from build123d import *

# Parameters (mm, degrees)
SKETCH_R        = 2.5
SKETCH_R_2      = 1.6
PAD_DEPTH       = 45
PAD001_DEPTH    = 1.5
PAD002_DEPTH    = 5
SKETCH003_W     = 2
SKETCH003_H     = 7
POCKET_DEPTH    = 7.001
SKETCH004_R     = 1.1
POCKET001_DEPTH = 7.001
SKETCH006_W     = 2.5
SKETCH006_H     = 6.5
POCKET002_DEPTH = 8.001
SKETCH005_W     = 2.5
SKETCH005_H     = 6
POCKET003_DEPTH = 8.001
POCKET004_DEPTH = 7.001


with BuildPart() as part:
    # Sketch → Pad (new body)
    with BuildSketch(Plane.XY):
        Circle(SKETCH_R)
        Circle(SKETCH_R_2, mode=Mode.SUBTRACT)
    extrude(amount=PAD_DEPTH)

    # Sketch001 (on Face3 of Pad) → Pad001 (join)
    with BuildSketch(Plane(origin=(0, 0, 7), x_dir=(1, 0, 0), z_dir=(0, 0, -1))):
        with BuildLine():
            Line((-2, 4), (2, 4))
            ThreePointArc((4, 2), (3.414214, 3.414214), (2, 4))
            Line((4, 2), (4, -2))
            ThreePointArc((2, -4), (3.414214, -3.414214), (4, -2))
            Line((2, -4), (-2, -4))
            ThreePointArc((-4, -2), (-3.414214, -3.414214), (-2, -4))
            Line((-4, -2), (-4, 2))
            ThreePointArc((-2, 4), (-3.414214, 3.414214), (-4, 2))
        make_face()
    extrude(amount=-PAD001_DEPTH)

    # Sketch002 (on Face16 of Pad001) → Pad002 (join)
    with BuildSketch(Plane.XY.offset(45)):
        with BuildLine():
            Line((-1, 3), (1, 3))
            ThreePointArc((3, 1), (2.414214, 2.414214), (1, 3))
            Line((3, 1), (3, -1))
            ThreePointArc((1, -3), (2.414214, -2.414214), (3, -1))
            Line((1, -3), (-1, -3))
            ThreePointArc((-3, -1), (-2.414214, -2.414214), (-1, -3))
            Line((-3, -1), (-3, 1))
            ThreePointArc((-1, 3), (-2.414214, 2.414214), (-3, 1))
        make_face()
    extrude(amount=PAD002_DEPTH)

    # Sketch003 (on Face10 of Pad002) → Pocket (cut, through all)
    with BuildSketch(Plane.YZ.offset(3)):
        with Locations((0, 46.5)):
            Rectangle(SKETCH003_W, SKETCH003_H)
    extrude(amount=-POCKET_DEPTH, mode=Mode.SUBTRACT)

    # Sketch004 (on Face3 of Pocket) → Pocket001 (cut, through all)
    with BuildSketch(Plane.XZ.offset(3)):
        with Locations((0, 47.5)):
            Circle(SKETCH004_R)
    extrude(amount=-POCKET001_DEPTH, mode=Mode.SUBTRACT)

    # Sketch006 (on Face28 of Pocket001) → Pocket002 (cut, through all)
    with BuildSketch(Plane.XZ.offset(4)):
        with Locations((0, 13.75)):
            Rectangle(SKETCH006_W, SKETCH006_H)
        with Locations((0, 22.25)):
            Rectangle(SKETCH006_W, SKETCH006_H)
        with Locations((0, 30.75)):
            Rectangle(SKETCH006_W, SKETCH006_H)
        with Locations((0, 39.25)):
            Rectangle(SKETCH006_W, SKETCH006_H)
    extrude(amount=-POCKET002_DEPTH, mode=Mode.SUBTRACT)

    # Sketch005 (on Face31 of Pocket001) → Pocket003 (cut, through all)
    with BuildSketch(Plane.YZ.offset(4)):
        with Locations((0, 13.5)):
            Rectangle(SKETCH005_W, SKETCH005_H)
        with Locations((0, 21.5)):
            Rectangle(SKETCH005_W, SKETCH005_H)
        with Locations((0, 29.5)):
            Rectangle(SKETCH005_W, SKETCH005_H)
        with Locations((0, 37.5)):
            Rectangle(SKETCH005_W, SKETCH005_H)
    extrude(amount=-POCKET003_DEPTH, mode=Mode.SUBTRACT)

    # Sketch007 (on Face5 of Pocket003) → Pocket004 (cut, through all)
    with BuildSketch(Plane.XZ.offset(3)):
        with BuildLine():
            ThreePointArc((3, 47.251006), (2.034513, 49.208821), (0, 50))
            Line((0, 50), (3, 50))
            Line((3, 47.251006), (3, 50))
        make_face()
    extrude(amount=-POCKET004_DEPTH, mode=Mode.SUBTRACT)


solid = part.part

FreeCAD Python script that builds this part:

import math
import FreeCAD as App
import Part
import Sketcher

doc = App.newDocument("Part")
body = doc.addObject("PartDesign::Body", "Body")

# Sketch on XY plane
sketch1 = body.newObject("Sketcher::SketchObject", "Sketch")
sketch1.AttachmentSupport = (doc.getObject("XY_Plane"), [""])
sketch1.MapMode = "FlatFace"
sketch1.addGeometry([
    Part.Circle(App.Vector(0, 0, 0), App.Vector(0, 0, 1), 2.5),
    Part.Circle(App.Vector(0, 0, 0), App.Vector(0, 0, 1), 1.6),
], False)
sketch1.addConstraint([
    Sketcher.Constraint("Coincident", 0, 3, -1, 1),
    Sketcher.Constraint("Coincident", 1, 3, -1, 1),
    Sketcher.Constraint("Diameter", 0, 5.0),
    Sketcher.Constraint("Diameter", 1, 3.2),
])
pad1 = body.newObject("PartDesign::Pad", "Pad")
pad1.Profile = sketch1
pad1.Length = 45

# Sketch on XY plane
sketch2 = body.newObject("Sketcher::SketchObject", "Sketch001")
sketch2.AttachmentSupport = (doc.getObject("XY_Plane"), [""])
sketch2.MapMode = "FlatFace"
sketch2.AttachmentOffset = App.Placement(App.Vector(0, 0, 7), App.Rotation())
sketch2.addGeometry([
    Part.LineSegment(App.Vector(2, -4, 0), App.Vector(-2, -4, 0)),  # 0
    Part.ArcOfCircle(Part.Circle(App.Vector(-2, -2, 0), App.Vector(0, 0, 1), 2), math.radians(180), math.radians(270)),  # 1
    Part.LineSegment(App.Vector(-4, -2, 0), App.Vector(-4, 2, 0)),  # 2
    Part.ArcOfCircle(Part.Circle(App.Vector(-2, 2, 0), App.Vector(0, 0, 1), 2), math.radians(90), math.radians(180)),  # 3
    Part.LineSegment(App.Vector(-2, 4, 0), App.Vector(2, 4, 0)),  # 4
    Part.ArcOfCircle(Part.Circle(App.Vector(2, 2, 0), App.Vector(0, 0, 1), 2), math.radians(0), math.radians(90)),  # 5
    Part.LineSegment(App.Vector(4, 2, 0), App.Vector(4, -2, 0)),  # 6
    Part.ArcOfCircle(Part.Circle(App.Vector(2, -2, 0), App.Vector(0, 0, 1), 2), math.radians(-90), math.radians(0)),  # 7
], False)
sketch2.addConstraint([
    Sketcher.Constraint("Tangent", 0, 2, 1, 2),
    Sketcher.Constraint("Tangent", 1, 1, 2, 1),
    Sketcher.Constraint("Tangent", 2, 2, 3, 2),
    Sketcher.Constraint("Tangent", 3, 1, 4, 1),
    Sketcher.Constraint("Tangent", 4, 2, 5, 2),
    Sketcher.Constraint("Tangent", 5, 1, 6, 1),
    Sketcher.Constraint("Tangent", 6, 2, 7, 2),
    Sketcher.Constraint("Tangent", 7, 1, 0, 1),
    Sketcher.Constraint("Horizontal", 0),
    Sketcher.Constraint("Vertical", 2),
    Sketcher.Constraint("Horizontal", 4),
    Sketcher.Constraint("Vertical", 6),
    Sketcher.Constraint("Equal", 1, 3),
    Sketcher.Constraint("Equal", 3, 5),
    Sketcher.Constraint("Equal", 5, 7),
    Sketcher.Constraint("Symmetric", 1, 3, 5, 3, -1, 1),
    Sketcher.Constraint("Equal", 4, 2),
    Sketcher.Constraint("Radius", 1, 1.999999),
    Sketcher.Constraint("DistanceX", 0, 2, 0, 1, 4.0),
])
pad2 = body.newObject("PartDesign::Pad", "Pad001")
pad2.Profile = sketch2
pad2.Length = 1.5

# Sketch on XY plane
sketch3 = body.newObject("Sketcher::SketchObject", "Sketch002")
sketch3.AttachmentSupport = (doc.getObject("XY_Plane"), [""])
sketch3.MapMode = "FlatFace"
sketch3.AttachmentOffset = App.Placement(App.Vector(0, 0, 45), App.Rotation())
sketch3.addGeometry([
    Part.LineSegment(App.Vector(1, 3, 0), App.Vector(-1, 3, 0)),  # 0
    Part.ArcOfCircle(Part.Circle(App.Vector(-1, 1, 0), App.Vector(0, 0, 1), 2), math.radians(90), math.radians(180)),  # 1
    Part.LineSegment(App.Vector(-3, 1, 0), App.Vector(-3, -1, 0)),  # 2
    Part.ArcOfCircle(Part.Circle(App.Vector(-1, -1, 0), App.Vector(0, 0, 1), 2), math.radians(180), math.radians(270)),  # 3
    Part.LineSegment(App.Vector(-1, -3, 0), App.Vector(1, -3, 0)),  # 4
    Part.ArcOfCircle(Part.Circle(App.Vector(1, -1, 0), App.Vector(0, 0, 1), 2), math.radians(-90), math.radians(0)),  # 5
    Part.LineSegment(App.Vector(3, -1, 0), App.Vector(3, 1, 0)),  # 6
    Part.ArcOfCircle(Part.Circle(App.Vector(1, 1, 0), App.Vector(0, 0, 1), 2), math.radians(0), math.radians(90)),  # 7
], False)
sketch3.addConstraint([
    Sketcher.Constraint("Tangent", 0, 2, 1, 1),
    Sketcher.Constraint("Tangent", 1, 2, 2, 1),
    Sketcher.Constraint("Tangent", 2, 2, 3, 1),
    Sketcher.Constraint("Tangent", 3, 2, 4, 1),
    Sketcher.Constraint("Tangent", 4, 2, 5, 1),
    Sketcher.Constraint("Tangent", 5, 2, 6, 1),
    Sketcher.Constraint("Tangent", 6, 2, 7, 1),
    Sketcher.Constraint("Tangent", 7, 2, 0, 1),
    Sketcher.Constraint("Horizontal", 0),
    Sketcher.Constraint("Vertical", 2),
    Sketcher.Constraint("Horizontal", 4),
    Sketcher.Constraint("Vertical", 6),
    Sketcher.Constraint("Equal", 1, 3),
    Sketcher.Constraint("Equal", 3, 5),
    Sketcher.Constraint("Equal", 5, 7),
    Sketcher.Constraint("Symmetric", 1, 3, 5, 3, -1, 1),
    Sketcher.Constraint("Equal", 4, 2),
    Sketcher.Constraint("Radius", 1, 1.999999),
    Sketcher.Constraint("DistanceX", 0, 2, 0, 1, 2.0),
])
pad3 = body.newObject("PartDesign::Pad", "Pad002")
pad3.Profile = sketch3
pad3.Length = 5

# Sketch on YZ plane
sketch4 = body.newObject("Sketcher::SketchObject", "Sketch003")
sketch4.AttachmentSupport = (doc.getObject("YZ_Plane"), [""])
sketch4.MapMode = "FlatFace"
sketch4.AttachmentOffset = App.Placement(App.Vector(0, 0, 3), App.Rotation())
sketch4.addGeometry([
    Part.LineSegment(App.Vector(-1, 50, 0), App.Vector(-1, 43, 0)),
    Part.LineSegment(App.Vector(-1, 43, 0), App.Vector(1, 43, 0)),
    Part.LineSegment(App.Vector(1, 43, 0), App.Vector(1, 50, 0)),
    Part.LineSegment(App.Vector(1, 50, 0), App.Vector(-1, 50, 0)),
], False)
sketch4.addConstraint([
    Sketcher.Constraint("Coincident", 0, 2, 1, 1),
    Sketcher.Constraint("Coincident", 1, 2, 2, 1),
    Sketcher.Constraint("Coincident", 2, 2, 3, 1),
    Sketcher.Constraint("Coincident", 3, 2, 0, 1),
    Sketcher.Constraint("Vertical", 0),
    Sketcher.Constraint("Horizontal", 1),
    Sketcher.Constraint("Vertical", 2),
    Sketcher.Constraint("Horizontal", 3),
    Sketcher.Constraint("DistanceX", 1, 1, 1, 2, 2.0),
    Sketcher.Constraint("DistanceY", 0, 2, 0, 1, 7.0),
    Sketcher.Constraint("DistanceX", 0, 2, -1, 1, 1.0),
    Sketcher.Constraint("DistanceY", -1, 1, 0, 2, 43.0),
])
pocket1 = body.newObject("PartDesign::Pocket", "Pocket")
pocket1.Profile = sketch4
pocket1.Type = "ThroughAll"

# Sketch on XZ plane
sketch5 = body.newObject("Sketcher::SketchObject", "Sketch004")
sketch5.AttachmentSupport = (doc.getObject("XZ_Plane"), [""])
sketch5.MapMode = "FlatFace"
sketch5.AttachmentOffset = App.Placement(App.Vector(0, 0, 3), App.Rotation())
sketch5.addGeometry(Part.Circle(App.Vector(0, 47.5, 0), App.Vector(0, 0, 1), 1.1), False)
sketch5.addConstraint([
    Sketcher.Constraint("PointOnObject", 0, 3, -2),
    Sketcher.Constraint("Diameter", 0, 2.2),
    Sketcher.Constraint("DistanceY", -1, 1, 0, 3, 47.5),
])
pocket2 = body.newObject("PartDesign::Pocket", "Pocket001")
pocket2.Profile = sketch5
pocket2.Type = "ThroughAll"

# Sketch on XZ plane
sketch6 = body.newObject("Sketcher::SketchObject", "Sketch005")
sketch6.AttachmentSupport = (doc.getObject("XZ_Plane"), [""])
sketch6.MapMode = "FlatFace"
sketch6.AttachmentOffset = App.Placement(App.Vector(0, 0, 4), App.Rotation())
sketch6.addGeometry([
    Part.LineSegment(App.Vector(-1.2, 17, 0), App.Vector(-1.2, 10.5, 0)),  # 0
    Part.LineSegment(App.Vector(-1.2, 10.5, 0), App.Vector(1.2, 10.5, 0)),  # 1
    Part.LineSegment(App.Vector(1.2, 10.5, 0), App.Vector(1.2, 17, 0)),  # 2
    Part.LineSegment(App.Vector(1.2, 17, 0), App.Vector(-1.2, 17, 0)),  # 3
    Part.LineSegment(App.Vector(-1.2, 25.5, 0), App.Vector(-1.2, 19, 0)),  # 4
    Part.LineSegment(App.Vector(-1.2, 19, 0), App.Vector(1.2, 19, 0)),  # 5
    Part.LineSegment(App.Vector(1.2, 19, 0), App.Vector(1.2, 25.5, 0)),  # 6
    Part.LineSegment(App.Vector(1.2, 25.5, 0), App.Vector(-1.2, 25.5, 0)),  # 7
    Part.LineSegment(App.Vector(-1.2, 34, 0), App.Vector(-1.2, 27.5, 0)),  # 8
    Part.LineSegment(App.Vector(-1.2, 27.5, 0), App.Vector(1.2, 27.5, 0)),  # 9
    Part.LineSegment(App.Vector(1.2, 27.5, 0), App.Vector(1.2, 34, 0)),  # 10
    Part.LineSegment(App.Vector(1.2, 34, 0), App.Vector(-1.2, 34, 0)),  # 11
    Part.LineSegment(App.Vector(-1.2, 42.5, 0), App.Vector(-1.2, 36, 0)),  # 12
    Part.LineSegment(App.Vector(-1.2, 36, 0), App.Vector(1.2, 36, 0)),  # 13
    Part.LineSegment(App.Vector(1.2, 36, 0), App.Vector(1.2, 42.5, 0)),  # 14
    Part.LineSegment(App.Vector(1.2, 42.5, 0), App.Vector(-1.2, 42.5, 0)),  # 15
], False)
sketch6.addConstraint([
    Sketcher.Constraint("Coincident", 0, 2, 1, 1),
    Sketcher.Constraint("Coincident", 1, 2, 2, 1),
    Sketcher.Constraint("Coincident", 2, 2, 3, 1),
    Sketcher.Constraint("Coincident", 3, 2, 0, 1),
    Sketcher.Constraint("Coincident", 4, 2, 5, 1),
    Sketcher.Constraint("Coincident", 5, 2, 6, 1),
    Sketcher.Constraint("Coincident", 6, 2, 7, 1),
    Sketcher.Constraint("Coincident", 7, 2, 4, 1),
    Sketcher.Constraint("Coincident", 8, 2, 9, 1),
    Sketcher.Constraint("Coincident", 9, 2, 10, 1),
    Sketcher.Constraint("Coincident", 10, 2, 11, 1),
    Sketcher.Constraint("Coincident", 11, 2, 8, 1),
    Sketcher.Constraint("Coincident", 12, 2, 13, 1),
    Sketcher.Constraint("Coincident", 13, 2, 14, 1),
    Sketcher.Constraint("Coincident", 14, 2, 15, 1),
    Sketcher.Constraint("Coincident", 15, 2, 12, 1),
    Sketcher.Constraint("Vertical", 0),
    Sketcher.Constraint("Horizontal", 1),
    Sketcher.Constraint("Vertical", 2),
    Sketcher.Constraint("Horizontal", 3),
    Sketcher.Constraint("Vertical", 4),
    Sketcher.Constraint("Horizontal", 5),
    Sketcher.Constraint("Vertical", 6),
    Sketcher.Constraint("Horizontal", 7),
    Sketcher.Constraint("Vertical", 8),
    Sketcher.Constraint("Horizontal", 9),
    Sketcher.Constraint("Vertical", 10),
    Sketcher.Constraint("Horizontal", 11),
    Sketcher.Constraint("Vertical", 12),
    Sketcher.Constraint("Horizontal", 13),
    Sketcher.Constraint("Vertical", 14),
    Sketcher.Constraint("Horizontal", 15),
    Sketcher.Constraint("Vertical", 3, 2, 4, 2),
    Sketcher.Constraint("Vertical", 2, 2, 5, 2),
    Sketcher.Constraint("Vertical", 7, 2, 8, 2),
    Sketcher.Constraint("Vertical", 6, 2, 9, 2),
    Sketcher.Constraint("Vertical", 11, 2, 12, 2),
    Sketcher.Constraint("Vertical", 10, 2, 13, 2),
    Sketcher.Constraint("Equal", 2, 4),
    Sketcher.Constraint("Equal", 6, 8),
    Sketcher.Constraint("Equal", 10, 12),
    Sketcher.Constraint("DistanceX", 1, 1, 1, 2, 2.5),
    Sketcher.Constraint("DistanceY", 0, 2, 0, 1, 6.5),
    Sketcher.Constraint("DistanceY", -1, 1, 2, 2, 17.0),
    Sketcher.Constraint("DistanceY", -1, 1, 4, 2, 19.0),
    Sketcher.Constraint("DistanceY", -1, 1, 10, 2, 34.0),
    Sketcher.Constraint("DistanceY", -1, 1, 12, 2, 36.0),
    Sketcher.Constraint("DistanceX", 0, 2, -1, 1, 1.25),
])
pocket3 = body.newObject("PartDesign::Pocket", "Pocket002")
pocket3.Profile = sketch6
pocket3.Type = "ThroughAll"

# Sketch on YZ plane
sketch7 = body.newObject("Sketcher::SketchObject", "Sketch006")
sketch7.AttachmentSupport = (doc.getObject("YZ_Plane"), [""])
sketch7.MapMode = "FlatFace"
sketch7.AttachmentOffset = App.Placement(App.Vector(0, 0, 4), App.Rotation())
sketch7.addGeometry([
    Part.LineSegment(App.Vector(-1.2, 16.5, 0), App.Vector(-1.2, 10.5, 0)),  # 0
    Part.LineSegment(App.Vector(-1.2, 10.5, 0), App.Vector(1.2, 10.5, 0)),  # 1
    Part.LineSegment(App.Vector(1.2, 10.5, 0), App.Vector(1.2, 16.5, 0)),  # 2
    Part.LineSegment(App.Vector(1.2, 16.5, 0), App.Vector(-1.2, 16.5, 0)),  # 3
    Part.LineSegment(App.Vector(-1.2, 24.5, 0), App.Vector(-1.2, 18.5, 0)),  # 4
    Part.LineSegment(App.Vector(-1.2, 18.5, 0), App.Vector(1.2, 18.5, 0)),  # 5
    Part.LineSegment(App.Vector(1.2, 18.5, 0), App.Vector(1.2, 24.5, 0)),  # 6
    Part.LineSegment(App.Vector(1.2, 24.5, 0), App.Vector(-1.2, 24.5, 0)),  # 7
    Part.LineSegment(App.Vector(-1.2, 32.5, 0), App.Vector(-1.2, 26.5, 0)),  # 8
    Part.LineSegment(App.Vector(-1.2, 26.5, 0), App.Vector(1.2, 26.5, 0)),  # 9
    Part.LineSegment(App.Vector(1.2, 26.5, 0), App.Vector(1.2, 32.5, 0)),  # 10
    Part.LineSegment(App.Vector(1.2, 32.5, 0), App.Vector(-1.2, 32.5, 0)),  # 11
    Part.LineSegment(App.Vector(-1.2, 40.5, 0), App.Vector(-1.2, 34.5, 0)),  # 12
    Part.LineSegment(App.Vector(-1.2, 34.5, 0), App.Vector(1.2, 34.5, 0)),  # 13
    Part.LineSegment(App.Vector(1.2, 34.5, 0), App.Vector(1.2, 40.5, 0)),  # 14
    Part.LineSegment(App.Vector(1.2, 40.5, 0), App.Vector(-1.2, 40.5, 0)),  # 15
], False)
sketch7.addConstraint([
    Sketcher.Constraint("Coincident", 0, 2, 1, 1),
    Sketcher.Constraint("Coincident", 1, 2, 2, 1),
    Sketcher.Constraint("Coincident", 2, 2, 3, 1),
    Sketcher.Constraint("Coincident", 3, 2, 0, 1),
    Sketcher.Constraint("Coincident", 4, 2, 5, 1),
    Sketcher.Constraint("Coincident", 5, 2, 6, 1),
    Sketcher.Constraint("Coincident", 6, 2, 7, 1),
    Sketcher.Constraint("Coincident", 7, 2, 4, 1),
    Sketcher.Constraint("Coincident", 8, 2, 9, 1),
    Sketcher.Constraint("Coincident", 9, 2, 10, 1),
    Sketcher.Constraint("Coincident", 10, 2, 11, 1),
    Sketcher.Constraint("Coincident", 11, 2, 8, 1),
    Sketcher.Constraint("Coincident", 12, 2, 13, 1),
    Sketcher.Constraint("Coincident", 13, 2, 14, 1),
    Sketcher.Constraint("Coincident", 14, 2, 15, 1),
    Sketcher.Constraint("Coincident", 15, 2, 12, 1),
    Sketcher.Constraint("Vertical", 0),
    Sketcher.Constraint("Horizontal", 1),
    Sketcher.Constraint("Vertical", 2),
    Sketcher.Constraint("Horizontal", 3),
    Sketcher.Constraint("Vertical", 4),
    Sketcher.Constraint("Horizontal", 5),
    Sketcher.Constraint("Vertical", 6),
    Sketcher.Constraint("Horizontal", 7),
    Sketcher.Constraint("Vertical", 8),
    Sketcher.Constraint("Horizontal", 9),
    Sketcher.Constraint("Vertical", 10),
    Sketcher.Constraint("Horizontal", 11),
    Sketcher.Constraint("Vertical", 12),
    Sketcher.Constraint("Horizontal", 13),
    Sketcher.Constraint("Vertical", 14),
    Sketcher.Constraint("Horizontal", 15),
    Sketcher.Constraint("Vertical", 3, 2, 4, 2),
    Sketcher.Constraint("Vertical", 2, 2, 5, 2),
    Sketcher.Constraint("Vertical", 7, 2, 8, 2),
    Sketcher.Constraint("Vertical", 6, 2, 9, 2),
    Sketcher.Constraint("Vertical", 11, 2, 12, 2),
    Sketcher.Constraint("Vertical", 10, 2, 13, 2),
    Sketcher.Constraint("Equal", 2, 4),
    Sketcher.Constraint("Equal", 6, 8),
    Sketcher.Constraint("Equal", 10, 12),
    Sketcher.Constraint("DistanceY", 0, 2, 0, 1, 6.0),
    Sketcher.Constraint("DistanceX", 1, 1, 1, 2, 2.5),
    Sketcher.Constraint("DistanceY", 3, 2, 4, 2, 2.0),
    Sketcher.Constraint("DistanceY", 7, 2, 8, 2, 2.0),
    Sketcher.Constraint("DistanceY", 11, 2, 12, 2, 2.0),
    Sketcher.Constraint("DistanceY", -1, 1, 0, 2, 10.5),
    Sketcher.Constraint("DistanceX", 0, 2, -1, 1, 1.25),
])
pocket4 = body.newObject("PartDesign::Pocket", "Pocket003")
pocket4.Profile = sketch7
pocket4.Type = "ThroughAll"

# Sketch on XZ plane
sketch8 = body.newObject("Sketcher::SketchObject", "Sketch007")
sketch8.AttachmentSupport = (doc.getObject("XZ_Plane"), [""])
sketch8.MapMode = "FlatFace"
sketch8.AttachmentOffset = App.Placement(App.Vector(0, 0, 3), App.Rotation())
sketch8.addGeometry([
    Part.ArcOfCircle(Part.Circle(App.Vector(0, 47, 0), App.Vector(0, 0, 1), 3), math.radians(5), math.radians(90)),
    Part.LineSegment(App.Vector(3, 47.3, 0), App.Vector(3, 50, 0)),
    Part.LineSegment(App.Vector(3, 50, 0), App.Vector(0, 50, 0)),
], False)
sketch8.addConstraint([
    Sketcher.Constraint("Coincident", 0, 1, 1, 1),
    Sketcher.Constraint("Coincident", 1, 2, 2, 1),
    Sketcher.Constraint("Tangent", 2, 2, 0, 2),
    Sketcher.Constraint("Vertical", 1),
    Sketcher.Constraint("Horizontal", 2),
    Sketcher.Constraint("PointOnObject", 0, 3, -2),
    Sketcher.Constraint("DistanceX", 2, 2, 2, 1, 3.0),
    Sketcher.Constraint("DistanceY", -1, 1, 1, 2, 50.0),
    Sketcher.Constraint("Radius", 0, 3.011459),
])
pocket5 = body.newObject("PartDesign::Pocket", "Pocket004")
pocket5.Profile = sketch8
pocket5.Type = "ThroughAll"

doc.recompute()
